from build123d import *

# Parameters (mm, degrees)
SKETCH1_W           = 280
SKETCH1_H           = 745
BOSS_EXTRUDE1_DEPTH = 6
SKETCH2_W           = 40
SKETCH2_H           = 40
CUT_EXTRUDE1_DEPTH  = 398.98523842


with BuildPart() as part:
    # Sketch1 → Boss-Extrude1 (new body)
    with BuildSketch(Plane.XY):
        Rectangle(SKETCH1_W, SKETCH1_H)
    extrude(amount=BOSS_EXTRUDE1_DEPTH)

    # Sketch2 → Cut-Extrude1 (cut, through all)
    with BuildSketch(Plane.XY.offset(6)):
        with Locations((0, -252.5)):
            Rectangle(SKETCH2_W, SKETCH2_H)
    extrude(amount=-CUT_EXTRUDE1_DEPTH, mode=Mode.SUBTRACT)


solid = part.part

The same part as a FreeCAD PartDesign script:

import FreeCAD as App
import Part
import Sketcher
from FreeCAD import Vector
Q = App.Units.Quantity

doc = App.newDocument("Part")
body = doc.addObject("PartDesign::Body", "Body")

sketch1 = body.newObject("Sketcher::SketchObject", "Sketch")
sketch1.AttachmentSupport = (doc.getObject("XY_Plane"), [""])
sketch1.MapMode = "FlatFace"
sketch1.addGeometry([
    Part.LineSegment(Vector(-140, 372, 0), Vector(-140, -372, 0)),
    Part.LineSegment(Vector(-140, -372, 0), Vector(140, -372, 0)),
    Part.LineSegment(Vector(140, -372, 0), Vector(140, 372, 0)),
    Part.LineSegment(Vector(140, 372, 0), Vector(-140, 372, 0)),
], False)
sketch1.addConstraint([
    Sketcher.Constraint("Coincident", 0, 2, 1, 1),
    Sketcher.Constraint("Coincident", 1, 2, 2, 1),
    Sketcher.Constraint("Coincident", 2, 2, 3, 1),
    Sketcher.Constraint("Coincident", 3, 2, 0, 1),
    Sketcher.Constraint("Vertical", 0),
    Sketcher.Constraint("Horizontal", 1),
    Sketcher.Constraint("Vertical", 2),
    Sketcher.Constraint("Horizontal", 3),
    Sketcher.Constraint("Symmetric", 0, 2, 2, 2, -1, 1),
    Sketcher.Constraint("DistanceX", 1, 1, 1, 2, Q("280 mm")),
    Sketcher.Constraint("DistanceY", 0, 2, 0, 1, Q("745 mm")),
])
pad1 = body.newObject("PartDesign::Pad", "Pad")
pad1.Profile = sketch1
pad1.Length = 6

sketch2 = body.newObject("Sketcher::SketchObject", "Sketch001")
sketch2.AttachmentSupport = (doc.getObject("XY_Plane"), [""])
sketch2.MapMode = "FlatFace"
sketch2.AttachmentOffset = App.Placement(Vector(0, 0, 6), App.Rotation())
sketch2.addGeometry([
    Part.LineSegment(Vector(-20, -232, 0), Vector(-20, -272, 0)),
    Part.LineSegment(Vector(-20, -272, 0), Vector(20, -272, 0)),
    Part.LineSegment(Vector(20, -272, 0), Vector(20, -232, 0)),
    Part.LineSegment(Vector(20, -232, 0), Vector(-20, -232, 0)),
], False)
sketch2.addConstraint([
    Sketcher.Constraint("Coincident", 0, 2, 1, 1),
    Sketcher.Constraint("Coincident", 1, 2, 2, 1),
    Sketcher.Constraint("Coincident", 2, 2, 3, 1),
    Sketcher.Constraint("Coincident", 3, 2, 0, 1),
    Sketcher.Constraint("Vertical", 0),
    Sketcher.Constraint("Horizontal", 1),
    Sketcher.Constraint("Vertical", 2),
    Sketcher.Constraint("Horizontal", 3),
    Sketcher.Constraint("Equal", 3, 0),
    Sketcher.Constraint("DistanceX", 1, 1, 1, 2, Q("40 mm")),
    Sketcher.Constraint("DistanceX", 0, 2, -1, 1, Q("20 mm")),
    Sketcher.Constraint("DistanceY", 0, 2, -1, 1, Q("272.5 mm")),
])
pocket1 = body.newObject("PartDesign::Pocket", "Pocket")
pocket1.Profile = sketch2
pocket1.Type = "ThroughAll"

doc.recompute()
